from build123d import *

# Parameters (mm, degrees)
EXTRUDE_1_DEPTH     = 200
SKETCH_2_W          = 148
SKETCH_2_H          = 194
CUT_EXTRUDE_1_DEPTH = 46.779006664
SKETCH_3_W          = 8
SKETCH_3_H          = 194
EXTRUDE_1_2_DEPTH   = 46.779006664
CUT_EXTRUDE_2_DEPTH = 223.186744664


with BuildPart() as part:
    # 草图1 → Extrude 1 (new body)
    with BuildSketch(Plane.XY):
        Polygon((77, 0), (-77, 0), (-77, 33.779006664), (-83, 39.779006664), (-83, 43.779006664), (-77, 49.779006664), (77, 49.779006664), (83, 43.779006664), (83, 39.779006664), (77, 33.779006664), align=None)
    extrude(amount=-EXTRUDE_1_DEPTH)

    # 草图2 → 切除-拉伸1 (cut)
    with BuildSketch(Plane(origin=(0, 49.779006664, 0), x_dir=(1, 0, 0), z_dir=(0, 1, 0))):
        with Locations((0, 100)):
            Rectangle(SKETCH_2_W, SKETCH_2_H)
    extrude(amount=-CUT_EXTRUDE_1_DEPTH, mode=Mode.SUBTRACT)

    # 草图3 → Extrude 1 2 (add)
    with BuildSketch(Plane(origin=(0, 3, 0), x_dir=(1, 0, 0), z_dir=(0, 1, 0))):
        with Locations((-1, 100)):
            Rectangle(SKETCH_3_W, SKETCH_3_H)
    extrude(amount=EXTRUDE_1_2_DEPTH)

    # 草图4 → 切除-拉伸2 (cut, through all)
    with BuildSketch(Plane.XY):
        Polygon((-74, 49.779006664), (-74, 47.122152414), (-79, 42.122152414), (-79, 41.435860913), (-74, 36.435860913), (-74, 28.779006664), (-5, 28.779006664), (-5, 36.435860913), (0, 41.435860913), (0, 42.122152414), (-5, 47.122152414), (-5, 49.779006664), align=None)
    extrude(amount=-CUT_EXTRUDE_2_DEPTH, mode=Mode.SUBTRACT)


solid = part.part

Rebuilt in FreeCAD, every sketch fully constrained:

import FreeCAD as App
import Part
import Sketcher
from FreeCAD import Vector

doc = App.newDocument("Part")
body = doc.addObject("PartDesign::Body", "Body")

sketch1 = body.newObject("Sketcher::SketchObject", "Sketch")
sketch1.AttachmentSupport = (doc.getObject("XY_Plane"), [""])
sketch1.MapMode = "FlatFace"
sketch1.addGeometry([
    Part.LineSegment(Vector(-77, 0, 0), Vector(77, 0, 0)),
    Part.LineSegment(Vector(77, 0, 0), Vector(77, 33.8, 0)),
    Part.LineSegment(Vector(77, 33.8, 0), Vector(83, 39.8, 0)),
    Part.LineSegment(Vector(83, 39.8, 0), Vector(83, 43.8, 0)),
    Part.LineSegment(Vector(83, 43.8, 0), Vector(77, 49.8, 0)),
    Part.LineSegment(Vector(77, 49.8, 0), Vector(-77, 49.8, 0)),
    Part.LineSegment(Vector(-77, 49.8, 0), Vector(-83, 43.8, 0)),
    Part.LineSegment(Vector(-83, 43.8, 0), Vector(-83, 39.8, 0)),
    Part.LineSegment(Vector(-83, 39.8, 0), Vector(-77, 33.8, 0)),
    Part.LineSegment(Vector(-77, 33.8, 0), Vector(-77, 0, 0)),
], False)
sketch1.addConstraint([
    Sketcher.Constraint("Coincident", 0, 2, 1, 1),
    Sketcher.Constraint("Coincident", 1, 2, 2, 1),
    Sketcher.Constraint("Coincident", 2, 2, 3, 1),
    Sketcher.Constraint("Coincident", 3, 2, 4, 1),
    Sketcher.Constraint("Coincident", 4, 2, 5, 1),
    Sketcher.Constraint("Coincident", 5, 2, 6, 1),
    Sketcher.Constraint("Coincident", 6, 2, 7, 1),
    Sketcher.Constraint("Coincident", 7, 2, 8, 1),
    Sketcher.Constraint("Coincident", 8, 2, 9, 1),
    Sketcher.Constraint("Coincident", 9, 2, 0, 1),
    Sketcher.Constraint("Horizontal", 0),
    Sketcher.Constraint("Vertical", 1),
    Sketcher.Constraint("Vertical", 3),
    Sketcher.Constraint("Horizontal", 5),
    Sketcher.Constraint("Vertical", 7),
    Sketcher.Constraint("Vertical", 9),
    Sketcher.Constraint("Symmetric", 0, 2, 9, 2, -1, 1),
    Sketcher.Constraint("Symmetric", 3, 2, 6, 2, -2),
    Sketcher.Constraint("Perpendicular", 2, 4),
    Sketcher.Constraint("Perpendicular", 4, 6),
    Sketcher.Constraint("Perpendicular", 6, 8),
    Sketcher.Constraint("Horizontal", 2, 2, 7, 2),
    Sketcher.Constraint("Horizontal", 1, 2, 8, 2),
    Sketcher.Constraint("Vertical", 1, 2, 4, 2),
    Sketcher.Constraint("DistanceX", 0, 1, 0, 2, 154.0),
    Sketcher.Constraint("DistanceY", 3, 1, 3, 2, 4.0),
    Sketcher.Constraint("DistanceX", -1, 1, 2, 2, 83.0),
    Sketcher.Constraint("DistanceY", 1, 1, 1, 2, 33.779007),
])
pad1 = body.newObject("PartDesign::Pad", "Pad")
pad1.Profile = sketch1
pad1.Length = 200
pad1.Reversed = True

sketch2 = body.newObject("Sketcher::SketchObject", "Sketch001")
sketch2.AttachmentSupport = (doc.getObject("XZ_Plane"), [""])
sketch2.MapMode = "FlatFace"
sketch2.AttachmentOffset = App.Placement(Vector(0, 0, -49.779007), App.Rotation())
sketch2.addGeometry([
    Part.LineSegment(Vector(-74, -197, 0), Vector(-74, -3, 0)),
    Part.LineSegment(Vector(-74, -3, 0), Vector(74, -3, 0)),
    Part.LineSegment(Vector(74, -3, 0), Vector(74, -197, 0)),
    Part.LineSegment(Vector(74, -197, 0), Vector(-74, -197, 0)),
], False)
sketch2.addConstraint([
    Sketcher.Constraint("Coincident", 0, 2, 1, 1),
    Sketcher.Constraint("Coincident", 1, 2, 2, 1),
    Sketcher.Constraint("Coincident", 2, 2, 3, 1),
    Sketcher.Constraint("Coincident", 3, 2, 0, 1),
    Sketcher.Constraint("Vertical", 0),
    Sketcher.Constraint("Horizontal", 1),
    Sketcher.Constraint("Vertical", 2),
    Sketcher.Constraint("Horizontal", 3),
    Sketcher.Constraint("DistanceX", 1, 1, 1, 2, 148.0),
    Sketcher.Constraint("DistanceY", 0, 1, 0, 2, 194.0),
    Sketcher.Constraint("DistanceX", 0, 2, -1, 1, 74.0),
    Sketcher.Constraint("DistanceY", 0, 2, -1, 1, 3.0),
])
pocket1 = body.newObject("PartDesign::Pocket", "Pocket")
pocket1.Profile = sketch2
pocket1.Length = 46.779007
pocket1.Reversed = True

sketch3 = body.newObject("Sketcher::SketchObject", "Sketch002")
sketch3.AttachmentSupport = (doc.getObject("XZ_Plane"), [""])
sketch3.MapMode = "FlatFace"
sketch3.AttachmentOffset = App.Placement(Vector(0, 0, -3), App.Rotation())
sketch3.addGeometry([
    Part.LineSegment(Vector(-5, -197, 0), Vector(-5, -3, 0)),
    Part.LineSegment(Vector(-5, -3, 0), Vector(3, -3, 0)),
    Part.LineSegment(Vector(3, -3, 0), Vector(3, -197, 0)),
    Part.LineSegment(Vector(3, -197, 0), Vector(-5, -197, 0)),
], False)
sketch3.addConstraint([
    Sketcher.Constraint("Coincident", 0, 2, 1, 1),
    Sketcher.Constraint("Coincident", 1, 2, 2, 1),
    Sketcher.Constraint("Coincident", 2, 2, 3, 1),
    Sketcher.Constraint("Coincident", 3, 2, 0, 1),
    Sketcher.Constraint("Vertical", 0),
    Sketcher.Constraint("Horizontal", 1),
    Sketcher.Constraint("Vertical", 2),
    Sketcher.Constraint("Horizontal", 3),
    Sketcher.Constraint("DistanceX", 1, 1, 1, 2, 8.0),
    Sketcher.Constraint("DistanceY", 0, 1, 0, 2, 194.0),
    Sketcher.Constraint("DistanceX", 0, 2, -1, 1, 5.0),
    Sketcher.Constraint("DistanceY", 0, 2, -1, 1, 3.0),
])
pad2 = body.newObject("PartDesign::Pad", "Pad001")
pad2.Profile = sketch3
pad2.Length = 46.779007
pad2.Reversed = True

sketch4 = body.newObject("Sketcher::SketchObject", "Sketch003")
sketch4.AttachmentSupport = (doc.getObject("XY_Plane"), [""])
sketch4.MapMode = "FlatFace"
sketch4.addGeometry([
    Part.LineSegment(Vector(-74, 49.8, 0), Vector(-74, 47.1, 0)),
    Part.LineSegment(Vector(-74, 47.1, 0), Vector(-79, 42.1, 0)),
    Part.LineSegment(Vector(-79, 42.1, 0), Vector(-79, 41.4, 0)),
    Part.LineSegment(Vector(-79, 41.4, 0), Vector(-74, 36.4, 0)),
    Part.LineSegment(Vector(-74, 36.4, 0), Vector(-74, 28.8, 0)),
    Part.LineSegment(Vector(-74, 28.8, 0), Vector(-5, 28.8, 0)),
    Part.LineSegment(Vector(-5, 28.8, 0), Vector(-5, 36.4, 0)),
    Part.LineSegment(Vector(-5, 36.4, 0), Vector(0, 41.4, 0)),
    Part.LineSegment(Vector(0, 41.4, 0), Vector(0, 42.1, 0)),
    Part.LineSegment(Vector(0, 42.1, 0), Vector(-5, 47.1, 0)),
    Part.LineSegment(Vector(-5, 47.1, 0), Vector(-5, 49.8, 0)),
    Part.LineSegment(Vector(-5, 49.8, 0), Vector(-74, 49.8, 0)),
], False)
sketch4.addConstraint([
    Sketcher.Constraint("Coincident", 0, 2, 1, 1),
    Sketcher.Constraint("Coincident", 1, 2, 2, 1),
    Sketcher.Constraint("Coincident", 2, 2, 3, 1),
    Sketcher.Constraint("Coincident", 3, 2, 4, 1),
    Sketcher.Constraint("Coincident", 4, 2, 5, 1),
    Sketcher.Constraint("Coincident", 5, 2, 6, 1),
    Sketcher.Constraint("Coincident", 6, 2, 7, 1),
    Sketcher.Constraint("Coincident", 7, 2, 8, 1),
    Sketcher.Constraint("Coincident", 8, 2, 9, 1),
    Sketcher.Constraint("Coincident", 9, 2, 10, 1),
    Sketcher.Constraint("Coincident", 10, 2, 11, 1),
    Sketcher.Constraint("Coincident", 11, 2, 0, 1),
    Sketcher.Constraint("Vertical", 0),
    Sketcher.Constraint("Vertical", 2),
    Sketcher.Constraint("Vertical", 4),
    Sketcher.Constraint("Horizontal", 5),
    Sketcher.Constraint("Vertical", 6),
    Sketcher.Constraint("Vertical", 8),
    Sketcher.Constraint("Vertical", 10),
    Sketcher.Constraint("Horizontal", 11),
    Sketcher.Constraint("PointOnObject", 7, 2, -2),
    Sketcher.Constraint("Perpendicular", 1, 3),
    Sketcher.Constraint("Perpendicular", 3, 7),
    Sketcher.Constraint("Perpendicular", 7, 9),
    Sketcher.Constraint("Horizontal", 3, 2, 6, 2),
    Sketcher.Constraint("Horizontal", 2, 2, 7, 2),
    Sketcher.Constraint("Horizontal", 1, 2, 8, 2),
    Sketcher.Constraint("Horizontal", 0, 2, 9, 2),
    Sketcher.Constraint("Vertical", 0, 2, 3, 2),
    Sketcher.Constraint("Vertical", 6, 2, 9, 2),
    Sketcher.Constraint("DistanceX", 5, 1, 5, 2, 69.0),
    Sketcher.Constraint("DistanceX", 0, 2, -1, 1, 74.0),
    Sketcher.Constraint("DistanceY", 5, 2, 10, 2, 21.0),
    Sketcher.Constraint("DistanceY", 2, 2, 2, 1, 0.686292),
    Sketcher.Constraint("DistanceY", 0, 2, 0, 1, 2.656854),
    Sketcher.Constraint("DistanceY", -1, 1, 2, 2, 41.435861),
])
pocket2 = body.newObject("PartDesign::Pocket", "Pocket001")
pocket2.Profile = sketch4
pocket2.Type = "ThroughAll"

doc.recompute()
